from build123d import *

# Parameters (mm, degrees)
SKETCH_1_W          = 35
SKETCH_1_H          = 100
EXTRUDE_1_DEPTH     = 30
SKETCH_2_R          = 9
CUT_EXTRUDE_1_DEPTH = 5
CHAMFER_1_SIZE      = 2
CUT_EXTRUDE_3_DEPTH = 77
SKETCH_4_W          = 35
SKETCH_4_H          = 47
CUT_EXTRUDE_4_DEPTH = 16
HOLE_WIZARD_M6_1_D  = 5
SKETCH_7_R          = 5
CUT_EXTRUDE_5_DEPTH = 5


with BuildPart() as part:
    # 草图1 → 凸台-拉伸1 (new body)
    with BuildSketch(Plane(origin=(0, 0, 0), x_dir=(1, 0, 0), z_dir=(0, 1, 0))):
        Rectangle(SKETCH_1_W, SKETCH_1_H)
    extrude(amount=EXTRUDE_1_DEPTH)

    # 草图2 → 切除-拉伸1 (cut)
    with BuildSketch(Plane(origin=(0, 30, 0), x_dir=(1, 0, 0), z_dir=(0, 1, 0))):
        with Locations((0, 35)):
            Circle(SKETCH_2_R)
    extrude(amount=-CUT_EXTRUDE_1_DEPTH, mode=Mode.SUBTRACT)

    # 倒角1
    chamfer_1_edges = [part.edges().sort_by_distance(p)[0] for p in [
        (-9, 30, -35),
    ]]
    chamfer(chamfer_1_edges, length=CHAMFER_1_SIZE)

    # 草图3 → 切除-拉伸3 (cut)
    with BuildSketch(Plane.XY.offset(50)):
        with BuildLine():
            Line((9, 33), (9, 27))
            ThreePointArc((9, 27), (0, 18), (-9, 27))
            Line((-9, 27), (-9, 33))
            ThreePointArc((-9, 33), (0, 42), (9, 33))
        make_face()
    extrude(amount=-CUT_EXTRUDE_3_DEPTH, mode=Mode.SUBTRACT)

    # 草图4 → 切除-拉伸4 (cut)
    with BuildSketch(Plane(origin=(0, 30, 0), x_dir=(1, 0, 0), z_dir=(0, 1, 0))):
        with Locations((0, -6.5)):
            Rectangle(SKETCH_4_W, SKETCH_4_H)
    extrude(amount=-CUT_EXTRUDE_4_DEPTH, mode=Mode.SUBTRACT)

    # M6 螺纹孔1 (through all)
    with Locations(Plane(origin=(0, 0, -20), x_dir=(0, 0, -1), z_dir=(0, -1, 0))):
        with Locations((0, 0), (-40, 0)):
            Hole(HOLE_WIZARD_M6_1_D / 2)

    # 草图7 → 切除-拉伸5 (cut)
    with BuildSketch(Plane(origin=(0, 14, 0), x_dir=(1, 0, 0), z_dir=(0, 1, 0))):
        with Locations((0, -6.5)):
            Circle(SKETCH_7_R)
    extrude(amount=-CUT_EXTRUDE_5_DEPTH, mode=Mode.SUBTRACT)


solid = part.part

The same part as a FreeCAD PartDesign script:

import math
import FreeCAD as App
import Part
import Sketcher


def edges_at(feature, points):
    """Names of the edges that pass closest to the given points."""
    edges = feature.Shape.Edges
    near = lambda p: min(range(len(edges)), key=lambda i: edges[i].distToShape(Part.Vertex(*p))[0])
    return sorted({f"Edge{near(p) + 1}" for p in points})

doc = App.newDocument("Part")
body = doc.addObject("PartDesign::Body", "Body")

# Sketch on XZ plane
sketch1 = body.newObject("Sketcher::SketchObject", "Sketch")
sketch1.AttachmentSupport = (doc.getObject("XZ_Plane"), [""])
sketch1.MapMode = "FlatFace"
sketch1.addGeometry([
    Part.LineSegment(App.Vector(-18, -50, 0), App.Vector(-18, 50, 0)),
    Part.LineSegment(App.Vector(-18, 50, 0), App.Vector(18, 50, 0)),
    Part.LineSegment(App.Vector(18, 50, 0), App.Vector(18, -50, 0)),
    Part.LineSegment(App.Vector(18, -50, 0), App.Vector(-18, -50, 0)),
], False)
sketch1.addConstraint([
    Sketcher.Constraint("Coincident", 0, 2, 1, 1),
    Sketcher.Constraint("Coincident", 1, 2, 2, 1),
    Sketcher.Constraint("Coincident", 2, 2, 3, 1),
    Sketcher.Constraint("Coincident", 3, 2, 0, 1),
    Sketcher.Constraint("Vertical", 0),
    Sketcher.Constraint("Horizontal", 1),
    Sketcher.Constraint("Vertical", 2),
    Sketcher.Constraint("Horizontal", 3),
    Sketcher.Constraint("Symmetric", 0, 2, 2, 2, -1, 1),
    Sketcher.Constraint("DistanceX", 1, 1, 1, 2, 35.0),
    Sketcher.Constraint("DistanceY", 0, 1, 0, 2, 100.0),
])
pad1 = body.newObject("PartDesign::Pad", "Pad")
pad1.Profile = sketch1
pad1.Length = 30
pad1.Reversed = True

# Sketch on XZ plane
sketch2 = body.newObject("Sketcher::SketchObject", "Sketch001")
sketch2.AttachmentSupport = (doc.getObject("XZ_Plane"), [""])
sketch2.MapMode = "FlatFace"
sketch2.AttachmentOffset = App.Placement(App.Vector(0, 0, -30), App.Rotation())
sketch2.addGeometry(Part.Circle(App.Vector(0, -35, 0), App.Vector(0, 0, 1), 9), False)
sketch2.addConstraint([
    Sketcher.Constraint("PointOnObject", 0, 3, -2),
    Sketcher.Constraint("Diameter", 0, 18.0),
    Sketcher.Constraint("DistanceY", 0, 3, -1, 1, 35.0),
])
pocket1 = body.newObject("PartDesign::Pocket", "Pocket")
pocket1.Profile = sketch2
pocket1.Length = 5
pocket1.Reversed = True
doc.recompute()

chamfer = body.newObject("PartDesign::Chamfer", "Chamfer")
chamfer.Base = (pocket1, edges_at(pocket1, [(-9, 30, -35)]))
chamfer.Size = 2

# Sketch on XY plane
sketch3 = body.newObject("Sketcher::SketchObject", "Sketch002")
sketch3.AttachmentSupport = (doc.getObject("XY_Plane"), [""])
sketch3.MapMode = "FlatFace"
sketch3.AttachmentOffset = App.Placement(App.Vector(0, 0, 50), App.Rotation())
sketch3.addGeometry([
    Part.LineSegment(App.Vector(9, 27, 0), App.Vector(9, 33, 0)),
    Part.ArcOfCircle(Part.Circle(App.Vector(0, 33, 0), App.Vector(0, 0, 1), 9), math.radians(0), math.radians(180)),
    Part.LineSegment(App.Vector(-9, 33, 0), App.Vector(-9, 27, 0)),
    Part.ArcOfCircle(Part.Circle(App.Vector(0, 27, 0), App.Vector(0, 0, 1), 9), math.radians(180), math.radians(360)),
], False)
sketch3.addConstraint([
    Sketcher.Constraint("Tangent", 0, 2, 1, 1),
    Sketcher.Constraint("Tangent", 1, 2, 2, 1),
    Sketcher.Constraint("Tangent", 2, 2, 3, 1),
    Sketcher.Constraint("Tangent", 3, 2, 0, 1),
    Sketcher.Constraint("Vertical", 0),
    Sketcher.Constraint("Vertical", 2),
    Sketcher.Constraint("PointOnObject", 1, 3, -2),
    Sketcher.Constraint("Radius", 1, 9.0),
    Sketcher.Constraint("DistanceY", 0, 1, 0, 2, 6.0),
    Sketcher.Constraint("DistanceY", -1, 1, 1, 3, 33.0),
])
pocket2 = body.newObject("PartDesign::Pocket", "Pocket001")
pocket2.Profile = sketch3
pocket2.Length = 77

# Sketch on XZ plane
sketch4 = body.newObject("Sketcher::SketchObject", "Sketch003")
sketch4.AttachmentSupport = (doc.getObject("XZ_Plane"), [""])
sketch4.MapMode = "FlatFace"
sketch4.AttachmentOffset = App.Placement(App.Vector(0, 0, -30), App.Rotation())
sketch4.addGeometry([
    Part.LineSegment(App.Vector(-18, -17, 0), App.Vector(-18, 30, 0)),
    Part.LineSegment(App.Vector(-18, 30, 0), App.Vector(18, 30, 0)),
    Part.LineSegment(App.Vector(18, 30, 0), App.Vector(18, -17, 0)),
    Part.LineSegment(App.Vector(18, -17, 0), App.Vector(-18, -17, 0)),
], False)
sketch4.addConstraint([
    Sketcher.Constraint("Coincident", 0, 2, 1, 1),
    Sketcher.Constraint("Coincident", 1, 2, 2, 1),
    Sketcher.Constraint("Coincident", 2, 2, 3, 1),
    Sketcher.Constraint("Coincident", 3, 2, 0, 1),
    Sketcher.Constraint("Vertical", 0),
    Sketcher.Constraint("Horizontal", 1),
    Sketcher.Constraint("Vertical", 2),
    Sketcher.Constraint("Horizontal", 3),
    Sketcher.Constraint("DistanceX", 1, 1, 1, 2, 35.0),
    Sketcher.Constraint("DistanceY", 0, 1, 0, 2, 47.0),
    Sketcher.Constraint("DistanceY", -1, 1, 0, 2, 30.0),
    Sketcher.Constraint("DistanceX", 0, 2, -1, 1, 17.5),
])
pocket3 = body.newObject("PartDesign::Pocket", "Pocket002")
pocket3.Profile = sketch4
pocket3.Length = 16
pocket3.Reversed = True

# Sketch on XZ plane
sketch5 = body.newObject("Sketcher::SketchObject", "Sketch004")
sketch5.AttachmentSupport = (doc.getObject("XZ_Plane"), [""])
sketch5.MapMode = "FlatFace"
sketch5.addGeometry([
    Part.Circle(App.Vector(0, -20, 0), App.Vector(0, 0, 1), 2.5),
    Part.Circle(App.Vector(0, 20, 0), App.Vector(0, 0, 1), 2.5),
], False)
sketch5.addConstraint([
    Sketcher.Constraint("Equal", 0, 1),
    Sketcher.Constraint("Symmetric", 0, 3, 1, 3, -1, 1),
    Sketcher.Constraint("PointOnObject", 0, 3, -2),
    Sketcher.Constraint("Diameter", 0, 5.0),
    Sketcher.Constraint("DistanceY", 0, 3, -1, 1, 20.0),
])
doc.recompute()
hole = body.newObject("PartDesign::Hole", "Hole")
hole.Profile = sketch5
hole.ThreadType = "None"
hole.Diameter = 5
hole.DepthType = "ThroughAll"

# Sketch on XZ plane
sketch6 = body.newObject("Sketcher::SketchObject", "Sketch005")
sketch6.AttachmentSupport = (doc.getObject("XZ_Plane"), [""])
sketch6.MapMode = "FlatFace"
sketch6.AttachmentOffset = App.Placement(App.Vector(0, 0, -14), App.Rotation())
sketch6.addGeometry(Part.Circle(App.Vector(0, 6, 0), App.Vector(0, 0, 1), 5), False)
sketch6.addConstraint([
    Sketcher.Constraint("PointOnObject", 0, 3, -2),
    Sketcher.Constraint("Diameter", 0, 10.0),
    Sketcher.Constraint("DistanceY", -1, 1, 0, 3, 6.5),
])
pocket4 = body.newObject("PartDesign::Pocket", "Pocket003")
pocket4.Profile = sketch6
pocket4.Length = 5
pocket4.Reversed = True

doc.recompute()
